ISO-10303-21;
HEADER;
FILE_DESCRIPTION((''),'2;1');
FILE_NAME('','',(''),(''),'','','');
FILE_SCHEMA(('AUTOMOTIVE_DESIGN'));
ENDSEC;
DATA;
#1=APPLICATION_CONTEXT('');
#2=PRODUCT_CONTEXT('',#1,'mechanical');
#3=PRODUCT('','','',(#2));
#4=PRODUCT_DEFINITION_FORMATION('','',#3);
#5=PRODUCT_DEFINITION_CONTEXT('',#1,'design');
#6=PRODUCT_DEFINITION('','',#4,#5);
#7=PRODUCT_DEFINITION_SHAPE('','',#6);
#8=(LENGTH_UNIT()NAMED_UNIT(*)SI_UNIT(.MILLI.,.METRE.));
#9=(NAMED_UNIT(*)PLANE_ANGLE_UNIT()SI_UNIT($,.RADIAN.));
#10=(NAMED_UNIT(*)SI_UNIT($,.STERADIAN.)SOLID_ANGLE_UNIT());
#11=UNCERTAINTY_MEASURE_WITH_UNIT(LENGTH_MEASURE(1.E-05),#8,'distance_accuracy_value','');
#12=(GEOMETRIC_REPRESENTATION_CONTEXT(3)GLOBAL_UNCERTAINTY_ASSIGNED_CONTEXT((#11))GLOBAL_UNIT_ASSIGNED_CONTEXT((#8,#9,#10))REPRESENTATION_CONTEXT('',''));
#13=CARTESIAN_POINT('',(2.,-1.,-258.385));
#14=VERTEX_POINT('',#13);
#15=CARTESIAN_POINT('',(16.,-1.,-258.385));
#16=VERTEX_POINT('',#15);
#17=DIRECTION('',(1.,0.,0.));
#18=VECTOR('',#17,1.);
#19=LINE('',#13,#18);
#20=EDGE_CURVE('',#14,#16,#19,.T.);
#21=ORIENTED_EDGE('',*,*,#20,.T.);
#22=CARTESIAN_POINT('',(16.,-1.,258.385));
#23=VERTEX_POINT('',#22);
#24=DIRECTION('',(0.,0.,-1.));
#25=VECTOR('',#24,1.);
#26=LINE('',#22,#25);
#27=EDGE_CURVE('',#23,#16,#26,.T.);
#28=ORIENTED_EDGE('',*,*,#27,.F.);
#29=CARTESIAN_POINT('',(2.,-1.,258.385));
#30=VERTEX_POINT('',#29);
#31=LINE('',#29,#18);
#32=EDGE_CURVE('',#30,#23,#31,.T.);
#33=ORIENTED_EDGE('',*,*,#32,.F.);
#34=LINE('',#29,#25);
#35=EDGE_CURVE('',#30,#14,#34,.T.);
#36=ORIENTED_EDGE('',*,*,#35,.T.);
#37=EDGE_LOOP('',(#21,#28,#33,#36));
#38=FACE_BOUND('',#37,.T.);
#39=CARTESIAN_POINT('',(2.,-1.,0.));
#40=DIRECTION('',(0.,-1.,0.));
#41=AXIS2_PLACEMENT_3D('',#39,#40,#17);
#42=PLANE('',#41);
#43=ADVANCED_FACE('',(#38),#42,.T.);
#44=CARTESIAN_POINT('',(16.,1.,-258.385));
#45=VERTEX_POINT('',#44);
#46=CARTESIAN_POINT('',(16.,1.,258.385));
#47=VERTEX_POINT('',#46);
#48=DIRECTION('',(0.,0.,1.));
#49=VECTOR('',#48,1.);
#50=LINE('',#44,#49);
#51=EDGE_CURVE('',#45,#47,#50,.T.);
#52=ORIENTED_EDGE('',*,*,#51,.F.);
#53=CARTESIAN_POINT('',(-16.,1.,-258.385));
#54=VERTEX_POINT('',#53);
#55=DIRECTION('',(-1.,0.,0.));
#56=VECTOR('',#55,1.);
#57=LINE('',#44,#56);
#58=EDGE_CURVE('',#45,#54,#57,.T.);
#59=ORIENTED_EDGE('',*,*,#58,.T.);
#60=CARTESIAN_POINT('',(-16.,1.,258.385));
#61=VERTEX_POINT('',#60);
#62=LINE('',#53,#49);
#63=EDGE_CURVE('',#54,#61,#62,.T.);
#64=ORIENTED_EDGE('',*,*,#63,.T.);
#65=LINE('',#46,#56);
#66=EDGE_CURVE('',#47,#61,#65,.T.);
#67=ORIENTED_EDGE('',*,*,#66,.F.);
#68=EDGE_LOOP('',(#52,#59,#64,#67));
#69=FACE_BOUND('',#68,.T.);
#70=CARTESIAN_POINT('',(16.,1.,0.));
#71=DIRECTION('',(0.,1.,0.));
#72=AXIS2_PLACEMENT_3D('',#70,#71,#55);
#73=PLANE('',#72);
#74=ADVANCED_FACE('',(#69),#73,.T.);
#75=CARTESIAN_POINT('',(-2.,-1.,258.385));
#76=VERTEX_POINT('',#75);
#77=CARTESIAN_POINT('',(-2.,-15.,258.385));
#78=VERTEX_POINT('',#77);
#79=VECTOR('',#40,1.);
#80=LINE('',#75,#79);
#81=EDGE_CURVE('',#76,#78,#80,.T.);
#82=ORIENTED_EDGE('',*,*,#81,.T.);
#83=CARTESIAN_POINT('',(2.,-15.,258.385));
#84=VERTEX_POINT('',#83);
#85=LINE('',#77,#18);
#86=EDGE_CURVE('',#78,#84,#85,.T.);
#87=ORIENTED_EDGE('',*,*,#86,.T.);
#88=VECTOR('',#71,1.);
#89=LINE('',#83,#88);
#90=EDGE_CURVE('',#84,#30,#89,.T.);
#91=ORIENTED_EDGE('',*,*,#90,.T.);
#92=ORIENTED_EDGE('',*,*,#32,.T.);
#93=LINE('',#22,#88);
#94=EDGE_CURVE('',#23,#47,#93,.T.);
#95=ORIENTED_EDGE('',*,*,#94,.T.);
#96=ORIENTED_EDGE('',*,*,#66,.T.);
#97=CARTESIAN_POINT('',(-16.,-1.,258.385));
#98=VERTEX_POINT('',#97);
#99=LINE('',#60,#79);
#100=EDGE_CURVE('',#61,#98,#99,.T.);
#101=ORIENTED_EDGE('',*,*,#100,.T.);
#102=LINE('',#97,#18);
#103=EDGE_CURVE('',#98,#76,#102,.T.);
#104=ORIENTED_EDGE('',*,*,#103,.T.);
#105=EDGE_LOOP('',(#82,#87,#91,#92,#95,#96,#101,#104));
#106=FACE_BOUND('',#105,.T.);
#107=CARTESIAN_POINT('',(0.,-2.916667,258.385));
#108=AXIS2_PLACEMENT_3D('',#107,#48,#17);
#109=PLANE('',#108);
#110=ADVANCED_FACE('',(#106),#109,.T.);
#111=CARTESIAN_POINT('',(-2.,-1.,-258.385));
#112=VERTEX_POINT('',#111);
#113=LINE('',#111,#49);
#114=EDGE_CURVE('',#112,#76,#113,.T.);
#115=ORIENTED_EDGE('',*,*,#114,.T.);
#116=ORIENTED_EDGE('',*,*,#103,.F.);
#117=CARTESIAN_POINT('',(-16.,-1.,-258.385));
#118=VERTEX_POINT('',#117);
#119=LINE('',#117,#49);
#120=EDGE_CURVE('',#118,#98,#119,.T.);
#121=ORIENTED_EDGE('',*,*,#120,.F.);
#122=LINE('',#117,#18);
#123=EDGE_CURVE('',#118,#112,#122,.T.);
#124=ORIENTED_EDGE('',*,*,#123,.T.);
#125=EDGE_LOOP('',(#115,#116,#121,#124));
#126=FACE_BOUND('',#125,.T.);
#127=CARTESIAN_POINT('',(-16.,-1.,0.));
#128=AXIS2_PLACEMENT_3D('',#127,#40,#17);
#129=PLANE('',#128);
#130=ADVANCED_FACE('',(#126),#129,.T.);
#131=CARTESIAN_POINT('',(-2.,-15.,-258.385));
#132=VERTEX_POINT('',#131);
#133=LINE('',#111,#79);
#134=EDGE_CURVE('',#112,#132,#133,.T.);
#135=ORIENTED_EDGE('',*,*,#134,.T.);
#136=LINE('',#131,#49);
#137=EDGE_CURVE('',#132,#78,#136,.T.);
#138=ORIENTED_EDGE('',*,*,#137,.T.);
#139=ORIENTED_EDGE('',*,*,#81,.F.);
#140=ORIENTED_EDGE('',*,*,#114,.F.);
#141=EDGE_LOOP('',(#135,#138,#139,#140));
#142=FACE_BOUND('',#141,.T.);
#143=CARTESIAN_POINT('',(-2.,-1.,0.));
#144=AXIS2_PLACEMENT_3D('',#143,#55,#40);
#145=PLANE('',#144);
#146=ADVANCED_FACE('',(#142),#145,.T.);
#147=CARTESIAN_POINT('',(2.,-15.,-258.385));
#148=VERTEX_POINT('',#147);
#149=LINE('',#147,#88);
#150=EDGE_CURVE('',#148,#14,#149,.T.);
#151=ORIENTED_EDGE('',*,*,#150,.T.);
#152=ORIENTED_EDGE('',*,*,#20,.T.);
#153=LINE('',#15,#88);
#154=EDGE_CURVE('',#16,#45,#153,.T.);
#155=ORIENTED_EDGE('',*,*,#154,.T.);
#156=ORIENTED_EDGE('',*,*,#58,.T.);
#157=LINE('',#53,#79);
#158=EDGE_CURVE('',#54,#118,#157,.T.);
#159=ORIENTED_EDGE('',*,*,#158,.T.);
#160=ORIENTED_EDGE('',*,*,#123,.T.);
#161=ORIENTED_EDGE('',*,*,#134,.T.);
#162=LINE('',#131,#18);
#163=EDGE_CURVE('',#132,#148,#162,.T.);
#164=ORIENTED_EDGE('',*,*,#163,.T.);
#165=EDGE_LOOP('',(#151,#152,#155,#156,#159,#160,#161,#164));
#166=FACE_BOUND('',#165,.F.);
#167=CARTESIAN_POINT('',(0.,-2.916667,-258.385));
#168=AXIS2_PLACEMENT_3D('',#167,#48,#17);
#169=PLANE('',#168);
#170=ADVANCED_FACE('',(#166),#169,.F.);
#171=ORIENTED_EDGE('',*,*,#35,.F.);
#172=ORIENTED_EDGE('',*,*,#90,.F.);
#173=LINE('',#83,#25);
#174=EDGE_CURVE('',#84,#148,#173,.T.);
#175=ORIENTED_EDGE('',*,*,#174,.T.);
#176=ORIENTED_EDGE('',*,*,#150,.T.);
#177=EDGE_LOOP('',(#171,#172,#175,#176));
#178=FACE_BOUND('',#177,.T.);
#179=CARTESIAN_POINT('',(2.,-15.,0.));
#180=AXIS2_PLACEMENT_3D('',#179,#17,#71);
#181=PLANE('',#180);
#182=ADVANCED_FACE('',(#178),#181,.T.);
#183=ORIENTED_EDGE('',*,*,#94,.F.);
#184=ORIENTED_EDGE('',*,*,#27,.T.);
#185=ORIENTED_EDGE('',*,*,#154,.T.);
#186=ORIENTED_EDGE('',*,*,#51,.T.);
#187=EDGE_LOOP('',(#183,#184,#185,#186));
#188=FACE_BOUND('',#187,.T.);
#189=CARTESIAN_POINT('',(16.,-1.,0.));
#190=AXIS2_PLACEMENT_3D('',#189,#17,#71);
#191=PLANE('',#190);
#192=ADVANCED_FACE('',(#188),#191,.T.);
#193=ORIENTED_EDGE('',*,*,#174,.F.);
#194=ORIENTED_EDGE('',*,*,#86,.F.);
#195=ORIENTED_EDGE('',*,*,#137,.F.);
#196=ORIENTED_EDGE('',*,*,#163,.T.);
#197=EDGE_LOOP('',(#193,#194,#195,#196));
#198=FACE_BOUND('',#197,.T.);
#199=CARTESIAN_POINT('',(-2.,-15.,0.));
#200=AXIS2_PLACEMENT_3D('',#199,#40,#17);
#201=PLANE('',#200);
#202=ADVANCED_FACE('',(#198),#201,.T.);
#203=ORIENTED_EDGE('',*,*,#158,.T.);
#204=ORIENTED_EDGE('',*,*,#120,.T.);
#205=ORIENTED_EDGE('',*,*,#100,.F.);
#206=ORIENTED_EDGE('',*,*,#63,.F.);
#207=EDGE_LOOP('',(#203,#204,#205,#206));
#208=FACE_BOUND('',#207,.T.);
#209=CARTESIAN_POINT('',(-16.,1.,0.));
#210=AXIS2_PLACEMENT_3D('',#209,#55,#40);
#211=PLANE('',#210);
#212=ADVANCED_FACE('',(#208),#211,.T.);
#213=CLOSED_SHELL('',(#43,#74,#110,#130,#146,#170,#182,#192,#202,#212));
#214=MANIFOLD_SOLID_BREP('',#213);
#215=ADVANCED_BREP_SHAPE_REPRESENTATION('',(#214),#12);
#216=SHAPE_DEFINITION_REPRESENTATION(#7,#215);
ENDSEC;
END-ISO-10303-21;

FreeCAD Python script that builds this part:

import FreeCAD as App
import Part
import Sketcher
from FreeCAD import Vector
Q = App.Units.Quantity


def add_polygon(sketch, points):
    """Adds a closed chain of lines whose ends are joined by coincident constraints."""
    first, n = sketch.GeometryCount, len(points)
    for a, b in zip(points, points[1:] + points[:1]):
        sketch.addGeometry(Part.LineSegment(App.Vector(*a, 0), App.Vector(*b, 0)), False)
    for i in range(n):
        sketch.addConstraint(Sketcher.Constraint("Coincident", first + i, 2, first + (i + 1) % n, 1))

doc = App.newDocument("Part")
body = doc.addObject("PartDesign::Body", "Body")

# Sketch on XY plane
sketch1 = doc.addObject("Sketcher::SketchObject", "Sketch")
body.addObject(sketch1)
sketch1.AttachmentSupport = (doc.XY_Plane, [""])
sketch1.MapMode = "FlatFace"
add_polygon(sketch1, [(16, -1), (16, 1), (-16, 1), (-16, -1), (-2, -1), (-2, -15), (2, -15), (2, -1)])  # lines 0-7
sketch1.addConstraint([
    Sketcher.Constraint("Vertical", 0),
    Sketcher.Constraint("Horizontal", 1),
    Sketcher.Constraint("Vertical", 2),
    Sketcher.Constraint("Horizontal", 3),
    Sketcher.Constraint("Vertical", 4),
    Sketcher.Constraint("Horizontal", 5),
    Sketcher.Constraint("Vertical", 6),
    Sketcher.Constraint("Horizontal", 7),
    Sketcher.Constraint("Symmetric", 0, 2, 2, 2, -1, 1),
    Sketcher.Constraint("Symmetric", 3, 2, 6, 2, -2),
    Sketcher.Constraint("Equal", 7, 4),
    Sketcher.Constraint("DistanceX", 1, 2, 1, 1, Q("32 mm")),
    Sketcher.Constraint("DistanceX", 3, 1, 3, 2, Q("14 mm")),
    Sketcher.Constraint("DistanceY", 0, 1, 0, 2, Q("2 mm")),
])
pad1 = doc.addObject("PartDesign::Pad", "Pad")
body.addObject(pad1)
pad1.Profile = sketch1
pad1.Length = 516.77
pad1.Midplane = True

doc.recompute()
